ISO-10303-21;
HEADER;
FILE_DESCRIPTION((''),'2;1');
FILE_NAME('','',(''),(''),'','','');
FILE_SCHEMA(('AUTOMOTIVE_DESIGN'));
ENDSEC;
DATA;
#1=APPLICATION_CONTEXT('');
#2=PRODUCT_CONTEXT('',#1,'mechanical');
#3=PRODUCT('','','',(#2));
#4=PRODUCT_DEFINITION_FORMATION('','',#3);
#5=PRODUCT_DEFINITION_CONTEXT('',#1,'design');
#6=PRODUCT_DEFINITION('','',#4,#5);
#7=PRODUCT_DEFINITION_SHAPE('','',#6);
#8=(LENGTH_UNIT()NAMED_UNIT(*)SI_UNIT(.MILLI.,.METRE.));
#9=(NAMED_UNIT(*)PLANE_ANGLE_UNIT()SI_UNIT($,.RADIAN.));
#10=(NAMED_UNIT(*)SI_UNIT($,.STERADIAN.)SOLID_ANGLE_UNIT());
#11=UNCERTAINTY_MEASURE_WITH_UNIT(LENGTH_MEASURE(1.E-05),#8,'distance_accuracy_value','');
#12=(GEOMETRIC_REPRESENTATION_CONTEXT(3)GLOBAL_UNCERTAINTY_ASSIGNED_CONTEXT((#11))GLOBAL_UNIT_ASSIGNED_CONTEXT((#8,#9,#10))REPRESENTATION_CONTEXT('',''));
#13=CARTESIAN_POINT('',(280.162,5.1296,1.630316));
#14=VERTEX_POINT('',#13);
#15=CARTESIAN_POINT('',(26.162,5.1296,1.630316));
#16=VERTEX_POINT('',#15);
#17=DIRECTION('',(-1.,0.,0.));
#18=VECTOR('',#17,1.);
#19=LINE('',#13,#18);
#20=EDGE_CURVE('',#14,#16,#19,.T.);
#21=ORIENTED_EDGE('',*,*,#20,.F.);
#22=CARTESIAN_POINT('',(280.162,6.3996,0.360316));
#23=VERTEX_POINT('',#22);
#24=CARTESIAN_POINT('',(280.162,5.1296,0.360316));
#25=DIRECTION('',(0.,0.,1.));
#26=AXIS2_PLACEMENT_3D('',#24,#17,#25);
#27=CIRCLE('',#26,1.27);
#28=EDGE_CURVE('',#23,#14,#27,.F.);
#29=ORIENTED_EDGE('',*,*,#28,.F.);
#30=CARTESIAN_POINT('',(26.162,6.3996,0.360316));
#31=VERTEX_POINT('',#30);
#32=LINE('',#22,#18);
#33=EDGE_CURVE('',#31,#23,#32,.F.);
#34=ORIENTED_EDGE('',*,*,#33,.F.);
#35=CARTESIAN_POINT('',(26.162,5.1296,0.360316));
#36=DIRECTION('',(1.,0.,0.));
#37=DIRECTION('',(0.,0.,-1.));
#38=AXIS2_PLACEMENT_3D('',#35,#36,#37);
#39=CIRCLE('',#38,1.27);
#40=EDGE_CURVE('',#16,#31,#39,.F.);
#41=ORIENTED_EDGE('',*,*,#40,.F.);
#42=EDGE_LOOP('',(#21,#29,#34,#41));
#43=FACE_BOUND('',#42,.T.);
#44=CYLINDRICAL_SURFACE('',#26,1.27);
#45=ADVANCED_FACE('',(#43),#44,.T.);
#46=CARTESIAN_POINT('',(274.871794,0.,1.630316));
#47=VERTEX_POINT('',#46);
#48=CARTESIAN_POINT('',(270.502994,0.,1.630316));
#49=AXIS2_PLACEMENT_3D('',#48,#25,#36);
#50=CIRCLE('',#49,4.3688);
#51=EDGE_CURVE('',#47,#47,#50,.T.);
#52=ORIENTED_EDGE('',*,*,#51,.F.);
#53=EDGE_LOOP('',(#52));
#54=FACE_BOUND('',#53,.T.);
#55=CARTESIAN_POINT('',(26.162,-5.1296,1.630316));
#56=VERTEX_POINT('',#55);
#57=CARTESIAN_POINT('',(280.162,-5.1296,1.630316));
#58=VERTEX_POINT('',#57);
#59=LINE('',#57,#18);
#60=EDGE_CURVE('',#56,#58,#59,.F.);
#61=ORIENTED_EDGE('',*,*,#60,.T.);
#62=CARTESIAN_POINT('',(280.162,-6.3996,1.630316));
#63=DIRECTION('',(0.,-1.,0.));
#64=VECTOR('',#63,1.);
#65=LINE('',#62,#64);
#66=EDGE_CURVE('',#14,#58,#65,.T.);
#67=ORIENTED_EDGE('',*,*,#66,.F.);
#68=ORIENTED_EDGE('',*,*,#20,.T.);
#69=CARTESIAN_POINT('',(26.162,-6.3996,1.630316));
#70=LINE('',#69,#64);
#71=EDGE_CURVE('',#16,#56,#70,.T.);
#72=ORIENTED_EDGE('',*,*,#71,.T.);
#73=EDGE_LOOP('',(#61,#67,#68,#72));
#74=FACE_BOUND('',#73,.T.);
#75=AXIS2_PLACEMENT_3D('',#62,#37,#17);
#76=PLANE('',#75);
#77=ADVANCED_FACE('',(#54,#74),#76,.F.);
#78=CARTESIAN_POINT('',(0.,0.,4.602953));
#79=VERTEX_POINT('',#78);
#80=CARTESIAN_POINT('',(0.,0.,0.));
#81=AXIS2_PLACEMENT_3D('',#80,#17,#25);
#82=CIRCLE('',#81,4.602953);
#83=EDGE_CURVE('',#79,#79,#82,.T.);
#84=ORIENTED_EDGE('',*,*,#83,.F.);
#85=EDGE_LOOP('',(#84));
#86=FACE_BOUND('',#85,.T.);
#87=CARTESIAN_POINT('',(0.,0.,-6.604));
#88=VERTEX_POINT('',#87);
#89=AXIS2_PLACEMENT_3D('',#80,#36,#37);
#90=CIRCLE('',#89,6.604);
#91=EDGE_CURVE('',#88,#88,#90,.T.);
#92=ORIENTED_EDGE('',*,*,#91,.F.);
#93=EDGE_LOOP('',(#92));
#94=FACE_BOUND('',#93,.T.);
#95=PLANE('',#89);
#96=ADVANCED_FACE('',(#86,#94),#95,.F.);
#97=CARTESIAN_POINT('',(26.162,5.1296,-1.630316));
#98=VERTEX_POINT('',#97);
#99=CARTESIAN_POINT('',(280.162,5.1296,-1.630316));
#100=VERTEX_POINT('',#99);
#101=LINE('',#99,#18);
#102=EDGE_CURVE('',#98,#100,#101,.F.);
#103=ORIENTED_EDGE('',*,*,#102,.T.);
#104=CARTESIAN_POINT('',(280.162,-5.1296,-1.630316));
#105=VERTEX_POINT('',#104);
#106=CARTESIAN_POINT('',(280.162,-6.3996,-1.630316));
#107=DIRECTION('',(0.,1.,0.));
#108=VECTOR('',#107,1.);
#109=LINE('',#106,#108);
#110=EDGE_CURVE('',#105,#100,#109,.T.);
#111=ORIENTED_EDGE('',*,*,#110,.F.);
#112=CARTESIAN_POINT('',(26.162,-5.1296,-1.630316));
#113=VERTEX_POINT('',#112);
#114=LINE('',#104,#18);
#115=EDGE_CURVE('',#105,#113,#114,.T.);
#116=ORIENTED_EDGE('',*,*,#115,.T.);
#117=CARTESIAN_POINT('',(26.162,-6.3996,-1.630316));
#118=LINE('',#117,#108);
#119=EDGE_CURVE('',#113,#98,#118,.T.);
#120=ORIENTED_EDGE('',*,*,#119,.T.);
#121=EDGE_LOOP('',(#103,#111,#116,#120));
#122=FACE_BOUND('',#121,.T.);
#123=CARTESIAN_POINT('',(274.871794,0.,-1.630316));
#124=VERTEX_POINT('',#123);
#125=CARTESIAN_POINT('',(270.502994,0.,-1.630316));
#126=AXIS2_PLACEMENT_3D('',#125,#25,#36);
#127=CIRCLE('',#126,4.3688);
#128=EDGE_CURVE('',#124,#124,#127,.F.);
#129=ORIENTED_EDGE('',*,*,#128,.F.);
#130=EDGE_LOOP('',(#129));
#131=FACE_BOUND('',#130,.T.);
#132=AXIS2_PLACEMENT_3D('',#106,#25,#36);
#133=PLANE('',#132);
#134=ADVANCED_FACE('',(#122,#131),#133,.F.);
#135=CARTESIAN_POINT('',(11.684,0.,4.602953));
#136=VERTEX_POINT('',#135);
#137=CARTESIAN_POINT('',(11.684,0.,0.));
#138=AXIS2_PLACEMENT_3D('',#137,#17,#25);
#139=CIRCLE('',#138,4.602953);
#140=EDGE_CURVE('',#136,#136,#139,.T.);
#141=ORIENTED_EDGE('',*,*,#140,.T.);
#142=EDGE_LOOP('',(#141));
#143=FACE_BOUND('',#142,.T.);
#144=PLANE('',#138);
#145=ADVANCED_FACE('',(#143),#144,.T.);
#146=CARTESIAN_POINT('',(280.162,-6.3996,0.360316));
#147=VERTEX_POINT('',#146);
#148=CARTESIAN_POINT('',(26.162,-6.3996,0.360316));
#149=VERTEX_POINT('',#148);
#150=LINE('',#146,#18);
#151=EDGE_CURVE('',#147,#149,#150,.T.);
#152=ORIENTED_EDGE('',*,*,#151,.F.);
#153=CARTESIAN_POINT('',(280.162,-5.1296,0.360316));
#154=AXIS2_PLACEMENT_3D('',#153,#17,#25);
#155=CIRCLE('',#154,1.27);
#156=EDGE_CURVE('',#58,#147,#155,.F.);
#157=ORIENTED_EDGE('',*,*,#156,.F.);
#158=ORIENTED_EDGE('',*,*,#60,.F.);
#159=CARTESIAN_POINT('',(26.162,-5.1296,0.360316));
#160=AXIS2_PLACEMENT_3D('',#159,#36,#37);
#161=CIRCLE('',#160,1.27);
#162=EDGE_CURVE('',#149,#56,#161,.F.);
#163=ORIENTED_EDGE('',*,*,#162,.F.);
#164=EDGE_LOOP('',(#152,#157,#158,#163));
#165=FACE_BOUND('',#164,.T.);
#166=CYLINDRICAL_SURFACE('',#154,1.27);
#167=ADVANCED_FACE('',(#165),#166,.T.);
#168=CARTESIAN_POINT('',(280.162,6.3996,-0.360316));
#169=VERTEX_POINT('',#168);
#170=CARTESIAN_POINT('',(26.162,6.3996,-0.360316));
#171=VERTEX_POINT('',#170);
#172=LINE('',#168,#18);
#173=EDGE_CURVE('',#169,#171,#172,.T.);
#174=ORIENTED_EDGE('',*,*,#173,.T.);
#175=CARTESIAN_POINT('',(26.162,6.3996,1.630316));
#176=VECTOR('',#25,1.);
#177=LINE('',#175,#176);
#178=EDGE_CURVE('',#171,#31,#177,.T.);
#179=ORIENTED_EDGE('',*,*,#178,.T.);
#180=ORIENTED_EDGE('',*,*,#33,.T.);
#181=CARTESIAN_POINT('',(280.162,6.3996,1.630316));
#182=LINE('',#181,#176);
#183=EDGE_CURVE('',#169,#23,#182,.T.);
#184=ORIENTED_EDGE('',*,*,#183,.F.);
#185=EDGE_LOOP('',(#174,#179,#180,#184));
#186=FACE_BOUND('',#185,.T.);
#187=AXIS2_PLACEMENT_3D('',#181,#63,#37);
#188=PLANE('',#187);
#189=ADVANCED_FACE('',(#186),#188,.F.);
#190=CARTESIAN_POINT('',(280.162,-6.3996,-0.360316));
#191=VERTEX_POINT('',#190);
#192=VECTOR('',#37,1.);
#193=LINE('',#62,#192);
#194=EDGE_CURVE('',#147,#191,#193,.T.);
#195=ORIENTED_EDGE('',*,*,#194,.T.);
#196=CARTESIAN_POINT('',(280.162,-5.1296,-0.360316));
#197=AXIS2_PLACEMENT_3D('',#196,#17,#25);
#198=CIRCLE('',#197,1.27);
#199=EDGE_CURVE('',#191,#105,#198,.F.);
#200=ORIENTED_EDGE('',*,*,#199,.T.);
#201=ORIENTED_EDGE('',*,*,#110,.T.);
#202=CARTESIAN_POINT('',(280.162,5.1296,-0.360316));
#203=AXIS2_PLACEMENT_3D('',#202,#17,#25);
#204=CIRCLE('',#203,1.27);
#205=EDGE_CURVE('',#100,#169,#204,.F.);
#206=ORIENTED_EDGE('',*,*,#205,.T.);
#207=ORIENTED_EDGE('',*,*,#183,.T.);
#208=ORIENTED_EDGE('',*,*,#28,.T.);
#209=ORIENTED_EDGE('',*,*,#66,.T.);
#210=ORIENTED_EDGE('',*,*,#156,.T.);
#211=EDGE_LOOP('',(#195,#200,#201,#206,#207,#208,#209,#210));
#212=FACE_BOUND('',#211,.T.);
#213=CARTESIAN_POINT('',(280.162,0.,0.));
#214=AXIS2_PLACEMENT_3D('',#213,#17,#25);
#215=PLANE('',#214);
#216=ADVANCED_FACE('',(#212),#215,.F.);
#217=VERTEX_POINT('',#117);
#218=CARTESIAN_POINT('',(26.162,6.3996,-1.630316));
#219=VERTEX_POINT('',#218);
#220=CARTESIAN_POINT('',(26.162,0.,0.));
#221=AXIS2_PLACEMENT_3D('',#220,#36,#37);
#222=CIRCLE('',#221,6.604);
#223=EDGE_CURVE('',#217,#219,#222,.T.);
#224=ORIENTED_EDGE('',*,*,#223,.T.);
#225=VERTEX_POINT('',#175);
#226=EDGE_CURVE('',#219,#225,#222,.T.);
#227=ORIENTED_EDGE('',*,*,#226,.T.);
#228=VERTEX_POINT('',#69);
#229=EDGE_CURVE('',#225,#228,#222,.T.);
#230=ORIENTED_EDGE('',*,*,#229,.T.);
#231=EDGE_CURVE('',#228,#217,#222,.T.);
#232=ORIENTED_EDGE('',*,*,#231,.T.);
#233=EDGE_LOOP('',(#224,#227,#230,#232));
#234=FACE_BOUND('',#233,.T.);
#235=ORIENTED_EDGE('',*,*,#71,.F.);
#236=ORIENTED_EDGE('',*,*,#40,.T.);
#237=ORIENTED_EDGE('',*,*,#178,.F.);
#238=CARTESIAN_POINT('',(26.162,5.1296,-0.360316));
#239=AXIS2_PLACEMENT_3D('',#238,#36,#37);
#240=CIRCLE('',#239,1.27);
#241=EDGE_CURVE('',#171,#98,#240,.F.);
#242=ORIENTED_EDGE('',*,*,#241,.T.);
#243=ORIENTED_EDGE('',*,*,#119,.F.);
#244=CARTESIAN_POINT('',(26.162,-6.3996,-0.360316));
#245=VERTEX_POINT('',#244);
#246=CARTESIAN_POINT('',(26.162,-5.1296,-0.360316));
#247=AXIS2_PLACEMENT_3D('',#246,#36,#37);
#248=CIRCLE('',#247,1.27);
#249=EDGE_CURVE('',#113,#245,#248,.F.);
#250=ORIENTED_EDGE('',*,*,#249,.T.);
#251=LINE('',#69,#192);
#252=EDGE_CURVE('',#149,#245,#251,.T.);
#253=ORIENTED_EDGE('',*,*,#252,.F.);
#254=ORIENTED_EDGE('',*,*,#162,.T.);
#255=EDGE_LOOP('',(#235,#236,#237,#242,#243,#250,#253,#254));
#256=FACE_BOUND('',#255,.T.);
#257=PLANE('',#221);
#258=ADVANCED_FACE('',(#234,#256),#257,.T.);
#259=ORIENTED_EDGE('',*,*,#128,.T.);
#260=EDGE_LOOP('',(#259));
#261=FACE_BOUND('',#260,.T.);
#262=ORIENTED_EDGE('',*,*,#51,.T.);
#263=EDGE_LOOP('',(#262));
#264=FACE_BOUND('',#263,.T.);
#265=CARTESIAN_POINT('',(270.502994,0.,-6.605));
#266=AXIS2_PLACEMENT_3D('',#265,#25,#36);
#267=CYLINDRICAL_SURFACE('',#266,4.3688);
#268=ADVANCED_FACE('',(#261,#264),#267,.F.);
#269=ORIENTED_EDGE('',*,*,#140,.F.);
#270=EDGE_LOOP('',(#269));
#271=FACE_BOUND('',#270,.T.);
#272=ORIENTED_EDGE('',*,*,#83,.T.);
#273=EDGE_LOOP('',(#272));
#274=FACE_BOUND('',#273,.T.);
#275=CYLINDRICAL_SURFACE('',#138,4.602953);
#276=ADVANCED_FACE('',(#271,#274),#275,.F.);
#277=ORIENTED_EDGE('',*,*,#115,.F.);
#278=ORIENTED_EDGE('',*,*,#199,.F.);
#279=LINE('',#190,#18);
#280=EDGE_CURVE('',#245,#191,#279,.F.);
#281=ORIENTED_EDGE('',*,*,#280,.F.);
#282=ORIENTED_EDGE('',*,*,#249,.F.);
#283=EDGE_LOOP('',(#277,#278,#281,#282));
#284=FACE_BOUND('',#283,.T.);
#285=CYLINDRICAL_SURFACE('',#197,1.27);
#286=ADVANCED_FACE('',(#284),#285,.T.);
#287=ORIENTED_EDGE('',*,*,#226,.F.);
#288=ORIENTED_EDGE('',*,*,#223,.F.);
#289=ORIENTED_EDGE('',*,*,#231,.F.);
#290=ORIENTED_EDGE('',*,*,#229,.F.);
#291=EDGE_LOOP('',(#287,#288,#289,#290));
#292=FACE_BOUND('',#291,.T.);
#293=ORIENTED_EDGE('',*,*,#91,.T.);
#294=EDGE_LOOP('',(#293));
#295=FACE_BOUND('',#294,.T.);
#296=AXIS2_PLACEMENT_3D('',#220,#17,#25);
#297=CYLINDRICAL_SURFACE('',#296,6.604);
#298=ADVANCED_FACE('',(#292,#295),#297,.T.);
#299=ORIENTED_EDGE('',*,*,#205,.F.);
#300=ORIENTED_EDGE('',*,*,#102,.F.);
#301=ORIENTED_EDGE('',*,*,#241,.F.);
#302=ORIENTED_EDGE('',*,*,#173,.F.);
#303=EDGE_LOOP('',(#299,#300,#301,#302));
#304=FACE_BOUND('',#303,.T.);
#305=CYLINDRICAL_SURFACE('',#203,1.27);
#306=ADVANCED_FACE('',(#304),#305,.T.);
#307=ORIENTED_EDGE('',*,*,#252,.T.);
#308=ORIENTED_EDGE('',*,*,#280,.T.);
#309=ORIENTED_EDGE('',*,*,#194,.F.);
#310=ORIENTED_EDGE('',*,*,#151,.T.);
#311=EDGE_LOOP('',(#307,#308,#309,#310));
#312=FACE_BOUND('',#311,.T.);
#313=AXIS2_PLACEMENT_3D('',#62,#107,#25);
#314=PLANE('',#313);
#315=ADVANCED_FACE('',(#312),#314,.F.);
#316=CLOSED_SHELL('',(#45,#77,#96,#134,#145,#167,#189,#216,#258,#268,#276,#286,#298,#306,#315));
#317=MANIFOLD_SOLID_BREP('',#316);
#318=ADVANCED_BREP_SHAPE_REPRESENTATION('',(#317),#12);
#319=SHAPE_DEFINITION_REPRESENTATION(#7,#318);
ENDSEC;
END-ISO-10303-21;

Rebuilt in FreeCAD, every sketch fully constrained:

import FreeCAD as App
import Part
import Sketcher
from FreeCAD import Vector
Q = App.Units.Quantity


def edges_at(feature, points):
    """Names of the edges that pass closest to the given points."""
    edges = feature.Shape.Edges
    near = lambda p: min(range(len(edges)), key=lambda i: edges[i].distToShape(Part.Vertex(*p))[0])
    return sorted({f"Edge{near(p) + 1}" for p in points})

doc = App.newDocument("Part")
body = doc.addObject("PartDesign::Body", "Body")

# Sketch on YZ plane
sketch1 = body.newObject("Sketcher::SketchObject", "Sketch")
sketch1.AttachmentSupport = (doc.getObject("YZ_Plane"), [""])
sketch1.MapMode = "FlatFace"
sketch1.addGeometry(Part.Circle(Vector(0, 0, 0), Vector(0, 0, 1), 7), False)
sketch1.addConstraint(Sketcher.Constraint("Coincident", 0, 3, -1, 1))
sketch1.addConstraint(Sketcher.Constraint("Diameter", 0, Q("0.52 in")))
pad1 = body.newObject("PartDesign::Pad", "Pad")
pad1.Profile = sketch1
pad1.Length = Q("1.03 in")

# Sketch on YZ plane
sketch2 = body.newObject("Sketcher::SketchObject", "Sketch001")
sketch2.AttachmentSupport = (doc.getObject("YZ_Plane"), [""])
sketch2.MapMode = "FlatFace"
sketch2.addGeometry(Part.Circle(Vector(0, 0, 0), Vector(0, 0, 1), 4.6), False)
sketch2.addConstraint(Sketcher.Constraint("Coincident", 0, 3, -1, 1))
sketch2.addConstraint(Sketcher.Constraint("Diameter", 0, Q("9.205906 mm")))
pocket1 = body.newObject("PartDesign::Pocket", "Pocket")
pocket1.Profile = sketch2
pocket1.Length = Q("0.46 in")
pocket1.Reversed = True

# Sketch on YZ plane
sketch3 = body.newObject("Sketcher::SketchObject", "Sketch002")
sketch3.AttachmentSupport = (doc.getObject("YZ_Plane"), [""])
sketch3.MapMode = "FlatFace"
sketch3.AttachmentOffset = App.Placement(Vector(0, 0, 1.03 * 25.4), App.Rotation())
sketch3.addGeometry(Part.LineSegment(Vector(6.4, 1.6, 0), Vector(-6.4, 1.6, 0)), False)
sketch3.addGeometry(Part.LineSegment(Vector(-6.4, 1.6, 0), Vector(-6.4, -1.6, 0)), False)
sketch3.addGeometry(Part.LineSegment(Vector(-6.4, -1.6, 0), Vector(6.4, -1.6, 0)), False)
sketch3.addGeometry(Part.LineSegment(Vector(6.4, -1.6, 0), Vector(6.4, 1.6, 0)), False)
sketch3.addConstraint(Sketcher.Constraint("Coincident", 0, 2, 1, 1))
sketch3.addConstraint(Sketcher.Constraint("Coincident", 1, 2, 2, 1))
sketch3.addConstraint(Sketcher.Constraint("Coincident", 2, 2, 3, 1))
sketch3.addConstraint(Sketcher.Constraint("Coincident", 3, 2, 0, 1))
sketch3.addConstraint(Sketcher.Constraint("Horizontal", 0))
sketch3.addConstraint(Sketcher.Constraint("Vertical", 1))
sketch3.addConstraint(Sketcher.Constraint("Horizontal", 2))
sketch3.addConstraint(Sketcher.Constraint("Vertical", 3))
sketch3.addConstraint(Sketcher.Constraint("Symmetric", 0, 2, 2, 2, -1, 1))
sketch3.addConstraint(Sketcher.Constraint("DistanceX", 0, 2, 0, 1, Q("12.799201 mm")))
sketch3.addConstraint(Sketcher.Constraint("DistanceY", 1, 2, 1, 1, Q("3.260633 mm")))
pad2 = body.newObject("PartDesign::Pad", "Pad001")
pad2.Profile = sketch3
pad2.Length = Q("10 in")
doc.recompute()

fillet = body.newObject("PartDesign::Fillet", "Fillet")
fillet.Base = (pad2, edges_at(pad2, [
    (153.162, -6.4, -1.63),
    (153.162, 6.4, -1.63),
    (153.162, 6.4, 1.63),
    (153.162, -6.4, 1.63),
]))
fillet.Radius = Q("0.05 in")

# Sketch on XY plane
sketch4 = body.newObject("Sketcher::SketchObject", "Sketch003")
sketch4.AttachmentSupport = (doc.getObject("XY_Plane"), [""])
sketch4.MapMode = "FlatFace"
sketch4.AttachmentOffset = App.Placement(Vector(0, 0, 1.630316), App.Rotation())
sketch4.addGeometry(Part.Circle(Vector(270.5, 0, 0), Vector(0, 0, 1), 4.4), False)
sketch4.addConstraint(Sketcher.Constraint("PointOnObject", 0, 3, -1))
sketch4.addConstraint(Sketcher.Constraint("Diameter", 0, Q("0.344 in")))
sketch4.addConstraint(Sketcher.Constraint("DistanceX", -1, 1, 0, 3, Q("270.502994 mm")))
pocket2 = body.newObject("PartDesign::Pocket", "Pocket001")
pocket2.Profile = sketch4
pocket2.Type = "UpToFirst"

doc.recompute()
